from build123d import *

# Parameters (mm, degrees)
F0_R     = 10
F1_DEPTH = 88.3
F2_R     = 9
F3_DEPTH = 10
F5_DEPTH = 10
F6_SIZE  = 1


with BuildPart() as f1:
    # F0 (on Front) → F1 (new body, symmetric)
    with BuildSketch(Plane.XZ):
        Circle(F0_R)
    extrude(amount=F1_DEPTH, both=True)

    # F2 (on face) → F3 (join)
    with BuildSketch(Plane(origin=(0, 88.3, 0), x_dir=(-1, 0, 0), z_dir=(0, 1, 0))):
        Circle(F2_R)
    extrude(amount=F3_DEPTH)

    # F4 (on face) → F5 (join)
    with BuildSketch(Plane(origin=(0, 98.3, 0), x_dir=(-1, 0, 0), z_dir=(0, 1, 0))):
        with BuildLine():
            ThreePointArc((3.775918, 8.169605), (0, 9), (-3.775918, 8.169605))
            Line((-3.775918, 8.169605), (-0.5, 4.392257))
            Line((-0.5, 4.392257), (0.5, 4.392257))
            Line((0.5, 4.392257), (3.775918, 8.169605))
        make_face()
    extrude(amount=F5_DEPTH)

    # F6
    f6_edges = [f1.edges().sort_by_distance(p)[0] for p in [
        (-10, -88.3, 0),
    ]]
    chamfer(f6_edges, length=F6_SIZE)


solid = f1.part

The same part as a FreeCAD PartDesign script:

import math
import FreeCAD as App
import Part
import Sketcher
from FreeCAD import Vector
Q = App.Units.Quantity


def edges_at(feature, points):
    """Names of the edges that pass closest to the given points."""
    edges = feature.Shape.Edges
    near = lambda p: min(range(len(edges)), key=lambda i: edges[i].distToShape(Part.Vertex(*p))[0])
    return sorted({f"Edge{near(p) + 1}" for p in points})

doc = App.newDocument("Part")
body = doc.addObject("PartDesign::Body", "Body")

# Sketch on XZ plane
sketch1 = body.newObject("Sketcher::SketchObject", "Sketch")
sketch1.AttachmentSupport = (doc.getObject("XZ_Plane"), [""])
sketch1.MapMode = "FlatFace"
sketch1.addGeometry(Part.Circle(Vector(0, 0, 0), Vector(0, 0, 1), 10), False)
sketch1.addConstraint([
    Sketcher.Constraint("Coincident", 0, 3, -1, 1),
    Sketcher.Constraint("Diameter", 0, Q("20 mm")),
])
pad1 = body.newObject("PartDesign::Pad", "Pad")
pad1.Profile = sketch1
pad1.Length = 176.6
pad1.Midplane = True

# Sketch on XZ plane
sketch2 = body.newObject("Sketcher::SketchObject", "Sketch001")
sketch2.AttachmentSupport = (doc.getObject("XZ_Plane"), [""])
sketch2.MapMode = "FlatFace"
sketch2.AttachmentOffset = App.Placement(Vector(0, 0, -88.3), App.Rotation())
sketch2.addGeometry(Part.Circle(Vector(0, 0, 0), Vector(0, 0, 1), 9), False)
sketch2.addConstraint([
    Sketcher.Constraint("Coincident", 0, 3, -1, 1),
    Sketcher.Constraint("Diameter", 0, Q("18 mm")),
])
pad2 = body.newObject("PartDesign::Pad", "Pad001")
pad2.Profile = sketch2
pad2.Length = 10
pad2.Reversed = True

# Sketch on XZ plane
sketch3 = body.newObject("Sketcher::SketchObject", "Sketch002")
sketch3.AttachmentSupport = (doc.getObject("XZ_Plane"), [""])
sketch3.MapMode = "FlatFace"
sketch3.AttachmentOffset = App.Placement(Vector(0, 0, -98.3), App.Rotation())
sketch3.addGeometry([
    Part.ArcOfCircle(Part.Circle(Vector(0, 0, 0), Vector(0, 0, 1), 9), math.radians(65), math.radians(115)),
    Part.LineSegment(Vector(3.8, 8.2, 0), Vector(0.5, 4.4, 0)),
    Part.LineSegment(Vector(0.5, 4.4, 0), Vector(-0.5, 4.4, 0)),
    Part.LineSegment(Vector(-0.5, 4.4, 0), Vector(-3.8, 8.2, 0)),
], False)
sketch3.addConstraint([
    Sketcher.Constraint("Coincident", 0, 1, 1, 1),
    Sketcher.Constraint("Coincident", 1, 2, 2, 1),
    Sketcher.Constraint("Coincident", 2, 2, 3, 1),
    Sketcher.Constraint("Coincident", 3, 2, 0, 2),
    Sketcher.Constraint("Horizontal", 2),
    Sketcher.Constraint("Coincident", 0, 3, -1, 1),
    Sketcher.Constraint("Horizontal", 0, 1, 3, 2),
    Sketcher.Constraint("Equal", 1, 3),
    Sketcher.Constraint("Radius", 0, Q("9.000002 mm")),
    Sketcher.Constraint("DistanceX", 2, 2, 2, 1, Q("1 mm")),
    Sketcher.Constraint("Distance", 1, Q("5 mm")),
    Sketcher.Constraint("DistanceX", -1, 1, 0, 1, Q("3.775918 mm")),
])
pad3 = body.newObject("PartDesign::Pad", "Pad002")
pad3.Profile = sketch3
pad3.Length = 10
pad3.Reversed = True
doc.recompute()

chamfer = body.newObject("PartDesign::Chamfer", "Chamfer")
chamfer.Base = (pad3, edges_at(pad3, [(-10, -88.3, 0)]))
chamfer.Size = 1

doc.recompute()
